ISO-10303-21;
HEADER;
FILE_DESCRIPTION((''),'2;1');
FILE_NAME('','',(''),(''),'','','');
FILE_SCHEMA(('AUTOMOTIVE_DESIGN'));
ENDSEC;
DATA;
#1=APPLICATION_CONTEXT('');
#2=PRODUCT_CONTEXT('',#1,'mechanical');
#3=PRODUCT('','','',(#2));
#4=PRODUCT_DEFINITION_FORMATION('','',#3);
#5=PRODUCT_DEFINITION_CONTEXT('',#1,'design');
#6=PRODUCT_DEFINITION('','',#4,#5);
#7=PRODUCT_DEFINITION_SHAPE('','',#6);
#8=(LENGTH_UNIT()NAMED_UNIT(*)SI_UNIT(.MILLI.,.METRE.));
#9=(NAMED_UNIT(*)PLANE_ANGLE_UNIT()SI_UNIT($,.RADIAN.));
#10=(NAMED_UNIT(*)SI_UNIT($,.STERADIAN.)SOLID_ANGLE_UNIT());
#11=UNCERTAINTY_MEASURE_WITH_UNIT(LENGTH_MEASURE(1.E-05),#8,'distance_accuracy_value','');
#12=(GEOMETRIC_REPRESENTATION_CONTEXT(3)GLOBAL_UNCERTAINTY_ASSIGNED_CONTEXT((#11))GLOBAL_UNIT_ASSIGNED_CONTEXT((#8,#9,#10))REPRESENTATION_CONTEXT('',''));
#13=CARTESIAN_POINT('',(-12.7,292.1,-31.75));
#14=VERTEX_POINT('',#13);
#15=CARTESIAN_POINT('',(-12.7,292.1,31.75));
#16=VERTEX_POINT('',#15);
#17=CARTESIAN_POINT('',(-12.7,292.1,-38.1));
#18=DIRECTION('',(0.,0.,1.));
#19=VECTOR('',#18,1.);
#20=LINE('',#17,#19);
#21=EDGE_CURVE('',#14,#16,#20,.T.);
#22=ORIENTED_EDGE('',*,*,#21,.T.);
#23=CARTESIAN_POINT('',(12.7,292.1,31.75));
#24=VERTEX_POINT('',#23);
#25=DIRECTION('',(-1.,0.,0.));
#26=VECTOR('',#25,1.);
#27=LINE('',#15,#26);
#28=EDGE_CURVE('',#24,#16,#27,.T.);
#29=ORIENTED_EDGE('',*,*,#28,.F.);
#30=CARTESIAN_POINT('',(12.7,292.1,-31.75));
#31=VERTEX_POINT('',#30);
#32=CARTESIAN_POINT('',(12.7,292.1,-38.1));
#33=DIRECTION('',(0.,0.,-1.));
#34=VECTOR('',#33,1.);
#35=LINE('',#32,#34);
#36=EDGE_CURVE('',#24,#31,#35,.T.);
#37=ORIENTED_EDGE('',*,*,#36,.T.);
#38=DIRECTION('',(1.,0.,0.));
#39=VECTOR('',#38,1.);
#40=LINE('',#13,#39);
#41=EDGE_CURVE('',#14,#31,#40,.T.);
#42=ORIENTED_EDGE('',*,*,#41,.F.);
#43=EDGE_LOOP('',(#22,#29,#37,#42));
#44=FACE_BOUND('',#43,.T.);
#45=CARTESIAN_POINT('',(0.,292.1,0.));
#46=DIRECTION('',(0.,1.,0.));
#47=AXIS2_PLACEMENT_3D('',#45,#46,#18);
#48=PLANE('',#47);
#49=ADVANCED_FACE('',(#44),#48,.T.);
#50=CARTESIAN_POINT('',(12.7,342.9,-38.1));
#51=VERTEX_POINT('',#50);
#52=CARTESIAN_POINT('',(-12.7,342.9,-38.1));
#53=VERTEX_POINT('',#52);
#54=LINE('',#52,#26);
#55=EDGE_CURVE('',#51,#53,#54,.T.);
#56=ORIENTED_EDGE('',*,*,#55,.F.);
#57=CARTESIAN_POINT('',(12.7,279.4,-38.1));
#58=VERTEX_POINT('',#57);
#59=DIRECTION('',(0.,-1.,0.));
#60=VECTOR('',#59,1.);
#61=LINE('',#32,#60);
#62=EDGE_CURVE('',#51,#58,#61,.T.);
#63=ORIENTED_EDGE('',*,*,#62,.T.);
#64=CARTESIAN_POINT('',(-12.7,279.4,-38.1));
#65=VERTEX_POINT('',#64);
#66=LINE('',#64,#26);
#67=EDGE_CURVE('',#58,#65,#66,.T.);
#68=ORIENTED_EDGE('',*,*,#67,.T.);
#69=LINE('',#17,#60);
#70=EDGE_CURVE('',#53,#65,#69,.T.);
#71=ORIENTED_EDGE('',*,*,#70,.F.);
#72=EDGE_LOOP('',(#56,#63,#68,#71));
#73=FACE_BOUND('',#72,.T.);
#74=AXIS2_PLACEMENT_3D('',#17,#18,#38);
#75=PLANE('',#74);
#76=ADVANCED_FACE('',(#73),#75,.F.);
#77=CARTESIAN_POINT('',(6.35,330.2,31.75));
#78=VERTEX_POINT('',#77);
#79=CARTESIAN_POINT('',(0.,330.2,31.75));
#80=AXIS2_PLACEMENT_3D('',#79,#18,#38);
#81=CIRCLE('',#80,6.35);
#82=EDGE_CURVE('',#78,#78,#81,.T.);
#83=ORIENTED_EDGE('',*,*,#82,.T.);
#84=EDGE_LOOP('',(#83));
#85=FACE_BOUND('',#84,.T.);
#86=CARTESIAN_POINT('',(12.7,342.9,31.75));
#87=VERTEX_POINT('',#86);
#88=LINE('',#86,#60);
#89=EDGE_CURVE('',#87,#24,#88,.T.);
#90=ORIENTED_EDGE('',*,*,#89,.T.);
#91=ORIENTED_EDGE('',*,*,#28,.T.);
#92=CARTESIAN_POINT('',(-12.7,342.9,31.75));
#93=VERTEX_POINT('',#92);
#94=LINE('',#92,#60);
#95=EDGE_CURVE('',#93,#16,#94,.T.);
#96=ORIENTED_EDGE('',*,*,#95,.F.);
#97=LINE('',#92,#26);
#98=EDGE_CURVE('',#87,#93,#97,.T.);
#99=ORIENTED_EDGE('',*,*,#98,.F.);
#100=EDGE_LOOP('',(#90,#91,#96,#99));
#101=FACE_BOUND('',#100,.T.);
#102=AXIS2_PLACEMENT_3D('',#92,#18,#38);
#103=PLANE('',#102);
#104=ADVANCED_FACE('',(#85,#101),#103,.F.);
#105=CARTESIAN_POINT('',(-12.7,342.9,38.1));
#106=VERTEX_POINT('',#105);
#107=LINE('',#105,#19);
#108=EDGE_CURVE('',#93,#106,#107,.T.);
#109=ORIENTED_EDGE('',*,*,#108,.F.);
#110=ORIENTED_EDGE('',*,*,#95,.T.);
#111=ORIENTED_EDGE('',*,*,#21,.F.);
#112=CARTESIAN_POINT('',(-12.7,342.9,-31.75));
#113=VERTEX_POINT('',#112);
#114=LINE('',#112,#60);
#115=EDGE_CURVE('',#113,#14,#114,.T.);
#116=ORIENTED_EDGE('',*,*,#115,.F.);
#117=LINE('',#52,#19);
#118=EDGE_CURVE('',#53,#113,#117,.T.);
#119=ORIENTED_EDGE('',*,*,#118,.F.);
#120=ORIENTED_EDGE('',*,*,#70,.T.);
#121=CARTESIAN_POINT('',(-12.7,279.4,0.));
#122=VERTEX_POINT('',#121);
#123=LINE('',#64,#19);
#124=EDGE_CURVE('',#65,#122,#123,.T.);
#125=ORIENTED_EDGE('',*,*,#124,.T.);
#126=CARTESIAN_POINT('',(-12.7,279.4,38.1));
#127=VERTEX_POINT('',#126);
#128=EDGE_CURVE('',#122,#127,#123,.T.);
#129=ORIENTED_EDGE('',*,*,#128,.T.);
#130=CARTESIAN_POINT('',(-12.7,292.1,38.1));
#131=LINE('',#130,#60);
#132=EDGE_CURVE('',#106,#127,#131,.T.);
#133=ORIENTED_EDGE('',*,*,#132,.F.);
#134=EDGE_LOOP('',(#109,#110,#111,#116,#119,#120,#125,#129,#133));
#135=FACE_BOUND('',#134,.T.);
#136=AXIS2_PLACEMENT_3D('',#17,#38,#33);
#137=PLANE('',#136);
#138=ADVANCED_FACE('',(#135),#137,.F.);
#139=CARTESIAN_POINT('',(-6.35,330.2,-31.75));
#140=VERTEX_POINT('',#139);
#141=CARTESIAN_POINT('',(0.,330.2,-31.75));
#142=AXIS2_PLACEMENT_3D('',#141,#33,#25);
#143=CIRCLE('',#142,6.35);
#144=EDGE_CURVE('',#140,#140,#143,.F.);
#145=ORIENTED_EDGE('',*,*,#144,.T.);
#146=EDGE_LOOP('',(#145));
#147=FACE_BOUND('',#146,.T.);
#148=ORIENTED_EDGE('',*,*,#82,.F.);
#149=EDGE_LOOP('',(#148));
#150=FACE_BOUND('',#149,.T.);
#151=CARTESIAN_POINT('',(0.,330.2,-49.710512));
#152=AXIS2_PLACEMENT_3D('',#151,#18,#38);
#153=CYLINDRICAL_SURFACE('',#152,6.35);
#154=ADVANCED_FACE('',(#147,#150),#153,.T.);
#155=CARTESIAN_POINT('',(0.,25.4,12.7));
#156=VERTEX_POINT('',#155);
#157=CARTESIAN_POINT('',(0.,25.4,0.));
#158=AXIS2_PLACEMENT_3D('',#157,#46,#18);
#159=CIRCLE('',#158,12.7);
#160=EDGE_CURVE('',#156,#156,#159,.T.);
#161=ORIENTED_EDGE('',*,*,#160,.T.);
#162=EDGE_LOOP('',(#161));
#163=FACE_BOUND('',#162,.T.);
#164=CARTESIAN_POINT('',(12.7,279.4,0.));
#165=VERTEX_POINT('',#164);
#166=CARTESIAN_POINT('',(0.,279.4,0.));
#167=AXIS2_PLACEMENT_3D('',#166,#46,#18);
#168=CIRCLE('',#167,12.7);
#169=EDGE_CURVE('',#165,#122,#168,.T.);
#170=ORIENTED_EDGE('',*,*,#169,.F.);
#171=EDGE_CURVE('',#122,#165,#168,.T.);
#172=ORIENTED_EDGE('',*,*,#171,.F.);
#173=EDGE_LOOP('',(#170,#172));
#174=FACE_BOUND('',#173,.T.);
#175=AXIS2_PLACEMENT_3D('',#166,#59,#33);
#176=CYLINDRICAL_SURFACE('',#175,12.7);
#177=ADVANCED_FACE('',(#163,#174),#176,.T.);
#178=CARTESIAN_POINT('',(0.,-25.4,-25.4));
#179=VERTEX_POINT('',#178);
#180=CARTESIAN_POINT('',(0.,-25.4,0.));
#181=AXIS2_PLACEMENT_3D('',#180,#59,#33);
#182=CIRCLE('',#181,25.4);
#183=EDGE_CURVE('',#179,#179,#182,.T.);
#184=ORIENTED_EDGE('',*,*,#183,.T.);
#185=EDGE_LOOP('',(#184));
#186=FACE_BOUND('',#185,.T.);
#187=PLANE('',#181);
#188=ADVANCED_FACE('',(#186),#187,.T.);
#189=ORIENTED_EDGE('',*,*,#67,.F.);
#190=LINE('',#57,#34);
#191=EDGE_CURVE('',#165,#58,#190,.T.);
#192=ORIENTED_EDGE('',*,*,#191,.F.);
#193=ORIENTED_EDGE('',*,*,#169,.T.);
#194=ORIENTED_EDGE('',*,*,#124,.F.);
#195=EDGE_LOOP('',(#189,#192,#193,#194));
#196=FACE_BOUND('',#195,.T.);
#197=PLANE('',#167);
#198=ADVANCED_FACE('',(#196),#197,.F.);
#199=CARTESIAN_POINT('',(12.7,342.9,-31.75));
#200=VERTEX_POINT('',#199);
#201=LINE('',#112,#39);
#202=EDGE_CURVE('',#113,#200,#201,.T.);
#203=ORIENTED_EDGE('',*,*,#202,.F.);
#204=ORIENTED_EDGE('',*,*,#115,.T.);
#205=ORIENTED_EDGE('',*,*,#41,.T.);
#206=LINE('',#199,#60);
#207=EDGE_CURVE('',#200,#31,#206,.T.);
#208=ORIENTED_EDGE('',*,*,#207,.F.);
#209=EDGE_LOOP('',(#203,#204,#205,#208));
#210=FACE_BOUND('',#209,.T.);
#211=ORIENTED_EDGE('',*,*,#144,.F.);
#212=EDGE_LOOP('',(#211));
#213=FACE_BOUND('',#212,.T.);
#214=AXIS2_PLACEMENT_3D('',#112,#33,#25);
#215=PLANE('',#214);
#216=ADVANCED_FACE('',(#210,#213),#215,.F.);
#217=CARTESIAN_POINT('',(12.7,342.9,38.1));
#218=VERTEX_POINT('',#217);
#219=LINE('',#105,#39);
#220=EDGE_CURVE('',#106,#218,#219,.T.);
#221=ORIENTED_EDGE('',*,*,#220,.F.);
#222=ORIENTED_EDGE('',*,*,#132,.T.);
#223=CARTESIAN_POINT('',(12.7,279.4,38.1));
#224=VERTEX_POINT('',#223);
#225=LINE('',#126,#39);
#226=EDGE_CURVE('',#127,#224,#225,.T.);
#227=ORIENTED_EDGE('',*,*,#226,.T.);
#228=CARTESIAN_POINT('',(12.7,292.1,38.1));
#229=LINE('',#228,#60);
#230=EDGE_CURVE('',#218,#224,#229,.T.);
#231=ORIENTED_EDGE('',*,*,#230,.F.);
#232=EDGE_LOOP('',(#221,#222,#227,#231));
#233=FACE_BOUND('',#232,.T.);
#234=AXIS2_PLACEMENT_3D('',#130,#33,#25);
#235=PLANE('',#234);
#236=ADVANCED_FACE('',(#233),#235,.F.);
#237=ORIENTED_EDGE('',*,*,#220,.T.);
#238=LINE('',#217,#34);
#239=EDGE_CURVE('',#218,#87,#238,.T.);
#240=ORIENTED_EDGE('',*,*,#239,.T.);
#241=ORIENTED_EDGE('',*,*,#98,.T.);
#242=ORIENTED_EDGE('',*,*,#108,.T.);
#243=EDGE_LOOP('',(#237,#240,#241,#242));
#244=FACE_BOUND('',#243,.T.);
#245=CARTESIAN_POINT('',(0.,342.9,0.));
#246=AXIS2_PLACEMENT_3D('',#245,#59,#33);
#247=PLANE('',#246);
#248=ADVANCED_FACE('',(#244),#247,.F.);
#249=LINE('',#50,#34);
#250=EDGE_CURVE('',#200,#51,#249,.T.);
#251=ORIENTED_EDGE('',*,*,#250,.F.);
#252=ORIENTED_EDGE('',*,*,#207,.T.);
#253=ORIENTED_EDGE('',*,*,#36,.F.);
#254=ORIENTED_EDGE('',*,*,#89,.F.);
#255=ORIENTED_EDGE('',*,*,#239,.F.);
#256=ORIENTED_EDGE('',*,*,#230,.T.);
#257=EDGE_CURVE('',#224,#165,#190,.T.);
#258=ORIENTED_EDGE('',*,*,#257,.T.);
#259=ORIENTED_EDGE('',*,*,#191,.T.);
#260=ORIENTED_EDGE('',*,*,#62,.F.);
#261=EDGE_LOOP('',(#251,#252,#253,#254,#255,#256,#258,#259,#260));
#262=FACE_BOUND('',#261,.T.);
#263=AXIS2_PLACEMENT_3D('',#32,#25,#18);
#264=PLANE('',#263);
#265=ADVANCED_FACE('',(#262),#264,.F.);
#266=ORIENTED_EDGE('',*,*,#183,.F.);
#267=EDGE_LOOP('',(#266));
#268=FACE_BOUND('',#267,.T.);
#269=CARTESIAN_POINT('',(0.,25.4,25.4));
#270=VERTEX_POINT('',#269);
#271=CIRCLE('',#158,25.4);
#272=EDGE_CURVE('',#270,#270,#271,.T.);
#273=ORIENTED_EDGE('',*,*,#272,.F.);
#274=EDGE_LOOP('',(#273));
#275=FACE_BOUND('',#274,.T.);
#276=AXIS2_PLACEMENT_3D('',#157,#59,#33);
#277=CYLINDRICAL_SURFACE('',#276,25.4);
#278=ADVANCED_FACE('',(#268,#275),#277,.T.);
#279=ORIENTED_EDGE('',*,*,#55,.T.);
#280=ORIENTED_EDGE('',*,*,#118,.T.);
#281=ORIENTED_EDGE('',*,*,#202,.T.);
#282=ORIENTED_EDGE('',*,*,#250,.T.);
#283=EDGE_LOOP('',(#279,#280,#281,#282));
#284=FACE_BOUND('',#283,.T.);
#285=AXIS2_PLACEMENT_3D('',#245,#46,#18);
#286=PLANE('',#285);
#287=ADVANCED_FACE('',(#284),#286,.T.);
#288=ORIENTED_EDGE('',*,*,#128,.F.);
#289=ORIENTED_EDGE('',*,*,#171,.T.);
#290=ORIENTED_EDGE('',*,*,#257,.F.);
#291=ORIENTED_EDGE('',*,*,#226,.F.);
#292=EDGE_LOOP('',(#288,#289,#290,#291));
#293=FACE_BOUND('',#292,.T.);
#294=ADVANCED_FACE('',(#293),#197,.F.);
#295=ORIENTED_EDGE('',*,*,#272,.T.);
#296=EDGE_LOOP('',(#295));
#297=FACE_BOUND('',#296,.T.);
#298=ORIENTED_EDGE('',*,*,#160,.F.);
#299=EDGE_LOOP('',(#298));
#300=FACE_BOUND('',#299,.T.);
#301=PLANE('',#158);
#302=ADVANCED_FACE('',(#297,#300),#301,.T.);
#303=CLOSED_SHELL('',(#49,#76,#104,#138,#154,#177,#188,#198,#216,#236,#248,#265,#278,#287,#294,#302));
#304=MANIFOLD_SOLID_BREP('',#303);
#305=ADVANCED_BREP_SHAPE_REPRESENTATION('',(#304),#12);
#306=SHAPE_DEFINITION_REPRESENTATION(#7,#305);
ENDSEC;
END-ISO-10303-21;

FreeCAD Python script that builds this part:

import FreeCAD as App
import Part
import Sketcher

V = App.Vector
Q = App.Units.Quantity

doc = App.newDocument("Part")
params = doc.addObject("Spreadsheet::Sheet", "Params")
for row, (alias, value) in enumerate([
    ("sketch1_diameter", "2 in"),
    ("pad1_length", "1 in"),
    ("sketch2_diameter", "1 in"),
    ("pad2_length", "10 in"),
    ("sketch3_width", "1 in"),
    ("sketch3_height", "3 in"),
    ("pad3_length", "0.5 in"),
    ("sketch4_width", "1 in"),
    ("sketch4_height", "0.25 in"),
    ("pad4_length", "2 in"),
    ("sketch5_diameter", "0.5 in"),
    ("pad5_length", "2.75 in"),
    ("sketch6_diameter", "2 in"),
    ("pad6_length", "1 in"),
], start=1):
    params.set(f"A{row}", alias)
    params.set(f"B{row}", "=" + value)
    params.setAlias(f"B{row}", alias)

body = doc.addObject("PartDesign::Body", "Body")

# Sketch on XZ plane
sketch1 = body.newObject("Sketcher::SketchObject", "Sketch")
sketch1.AttachmentSupport = (doc.getObject("XZ_Plane"), [""])
sketch1.MapMode = "FlatFace"
sketch1.addGeometry(Part.Circle(V(0, 0, 0), V(0, 0, 1), 25), False)
sketch1.addConstraint(Sketcher.Constraint("Coincident", 0, 3, -1, 1))
sketch1.addConstraint(Sketcher.Constraint("Diameter", 0, Q("2 in")))
sketch1.setExpression("Constraints[1]", "Params.sketch1_diameter")
pad1 = body.newObject("PartDesign::Pad", "Pad")
pad1.Profile = sketch1
pad1.setExpression("Length", "Params.pad1_length")
pad1.Reversed = True

# Sketch on XZ plane
sketch2 = body.newObject("Sketcher::SketchObject", "Sketch001")
sketch2.AttachmentSupport = (doc.getObject("XZ_Plane"), [""])
sketch2.MapMode = "FlatFace"
sketch2.AttachmentOffset = App.Placement(V(0, 0, -1 * 25.4), App.Rotation())
sketch2.addGeometry(Part.Circle(V(0, 0, 0), V(0, 0, 1), 13), False)
sketch2.addConstraint(Sketcher.Constraint("Coincident", 0, 3, -1, 1))
sketch2.addConstraint(Sketcher.Constraint("Diameter", 0, Q("1 in")))
sketch2.setExpression("Constraints[1]", "Params.sketch2_diameter")
pad2 = body.newObject("PartDesign::Pad", "Pad001")
pad2.Profile = sketch2
pad2.setExpression("Length", "Params.pad2_length")
pad2.Reversed = True

# Sketch on XZ plane
sketch3 = body.newObject("Sketcher::SketchObject", "Sketch002")
sketch3.AttachmentSupport = (doc.getObject("XZ_Plane"), [""])
sketch3.MapMode = "FlatFace"
sketch3.AttachmentOffset = App.Placement(V(0, 0, -11 * 25.4), App.Rotation())
sketch3.addGeometry(Part.LineSegment(V(-13, -38, 0), V(-13, 38, 0)), False)
sketch3.addGeometry(Part.LineSegment(V(-13, 38, 0), V(13, 38, 0)), False)
sketch3.addGeometry(Part.LineSegment(V(13, 38, 0), V(13, -38, 0)), False)
sketch3.addGeometry(Part.LineSegment(V(13, -38, 0), V(-13, -38, 0)), False)
sketch3.addConstraint(Sketcher.Constraint("Coincident", 0, 2, 1, 1))
sketch3.addConstraint(Sketcher.Constraint("Coincident", 1, 2, 2, 1))
sketch3.addConstraint(Sketcher.Constraint("Coincident", 2, 2, 3, 1))
sketch3.addConstraint(Sketcher.Constraint("Coincident", 3, 2, 0, 1))
sketch3.addConstraint(Sketcher.Constraint("Vertical", 0))
sketch3.addConstraint(Sketcher.Constraint("Horizontal", 1))
sketch3.addConstraint(Sketcher.Constraint("Vertical", 2))
sketch3.addConstraint(Sketcher.Constraint("Horizontal", 3))
sketch3.addConstraint(Sketcher.Constraint("Symmetric", 0, 2, 2, 2, -1, 1))
sketch3.addConstraint(Sketcher.Constraint("DistanceX", 1, 1, 1, 2, Q("1 in")))
sketch3.addConstraint(Sketcher.Constraint("DistanceY", 0, 1, 0, 2, Q("3 in")))
sketch3.setExpression("Constraints[9]", "Params.sketch3_width")
sketch3.setExpression("Constraints[10]", "Params.sketch3_height")
pad3 = body.newObject("PartDesign::Pad", "Pad002")
pad3.Profile = sketch3
pad3.setExpression("Length", "Params.pad3_length")
pad3.Reversed = True

# Sketch on XZ plane
sketch4 = body.newObject("Sketcher::SketchObject", "Sketch003")
sketch4.AttachmentSupport = (doc.getObject("XZ_Plane"), [""])
sketch4.MapMode = "FlatFace"
sketch4.AttachmentOffset = App.Placement(V(0, 0, -11.5 * 25.4), App.Rotation())
sketch4.addGeometry(Part.LineSegment(V(-13, -38, 0), V(-13, -32, 0)), False)
sketch4.addGeometry(Part.LineSegment(V(-13, -32, 0), V(13, -32, 0)), False)
sketch4.addGeometry(Part.LineSegment(V(13, -32, 0), V(13, -38, 0)), False)
sketch4.addGeometry(Part.LineSegment(V(13, -38, 0), V(-13, -38, 0)), False)
sketch4.addGeometry(Part.LineSegment(V(-13, 32, 0), V(-13, 38, 0)), False)
sketch4.addGeometry(Part.LineSegment(V(-13, 38, 0), V(13, 38, 0)), False)
sketch4.addGeometry(Part.LineSegment(V(13, 38, 0), V(13, 32, 0)), False)
sketch4.addGeometry(Part.LineSegment(V(13, 32, 0), V(-13, 32, 0)), False)
sketch4.addConstraint(Sketcher.Constraint("Coincident", 0, 2, 1, 1))
sketch4.addConstraint(Sketcher.Constraint("Coincident", 1, 2, 2, 1))
sketch4.addConstraint(Sketcher.Constraint("Coincident", 2, 2, 3, 1))
sketch4.addConstraint(Sketcher.Constraint("Coincident", 3, 2, 0, 1))
sketch4.addConstraint(Sketcher.Constraint("Coincident", 4, 2, 5, 1))
sketch4.addConstraint(Sketcher.Constraint("Coincident", 5, 2, 6, 1))
sketch4.addConstraint(Sketcher.Constraint("Coincident", 6, 2, 7, 1))
sketch4.addConstraint(Sketcher.Constraint("Coincident", 7, 2, 4, 1))
sketch4.addConstraint(Sketcher.Constraint("Vertical", 0))
sketch4.addConstraint(Sketcher.Constraint("Horizontal", 1))
sketch4.addConstraint(Sketcher.Constraint("Vertical", 2))
sketch4.addConstraint(Sketcher.Constraint("Horizontal", 3))
sketch4.addConstraint(Sketcher.Constraint("Vertical", 4))
sketch4.addConstraint(Sketcher.Constraint("Horizontal", 5))
sketch4.addConstraint(Sketcher.Constraint("Vertical", 6))
sketch4.addConstraint(Sketcher.Constraint("Horizontal", 7))
sketch4.addConstraint(Sketcher.Constraint("Symmetric", 2, 2, 4, 2, -1, 1))
sketch4.addConstraint(Sketcher.Constraint("Symmetric", 0, 2, 6, 2, -1, 1))
sketch4.addConstraint(Sketcher.Constraint("Vertical", 3, 2, 4, 2))
sketch4.addConstraint(Sketcher.Constraint("DistanceX", 1, 1, 1, 2, Q("1 in")))
sketch4.addConstraint(Sketcher.Constraint("DistanceY", 3, 2, 4, 2, Q("3 in")))
sketch4.addConstraint(Sketcher.Constraint("DistanceY", 0, 1, 0, 2, Q("0.25 in")))
sketch4.setExpression("Constraints[19]", "Params.sketch4_width")
sketch4.setExpression("Constraints[21]", "Params.sketch4_height")
pad4 = body.newObject("PartDesign::Pad", "Pad003")
pad4.Profile = sketch4
pad4.setExpression("Length", "Params.pad4_length")
pad4.Reversed = True

# Sketch on XY plane
sketch5 = body.newObject("Sketcher::SketchObject", "Sketch004")
sketch5.AttachmentSupport = (doc.getObject("XY_Plane"), [""])
sketch5.MapMode = "FlatFace"
sketch5.AttachmentOffset = App.Placement(V(0, 0, 1.5 * 25.4), App.Rotation())
sketch5.addGeometry(Part.Circle(V(0, 330, 0), V(0, 0, 1), 6), False)
sketch5.addConstraint(Sketcher.Constraint("PointOnObject", 0, 3, -2))
sketch5.addConstraint(Sketcher.Constraint("Diameter", 0, Q("0.5 in")))
sketch5.addConstraint(Sketcher.Constraint("DistanceY", -1, 1, 0, 3, Q("13 in")))
sketch5.setExpression("Constraints[1]", "Params.sketch5_diameter")
pad5 = body.newObject("PartDesign::Pad", "Pad004")
pad5.Profile = sketch5
pad5.setExpression("Length", "Params.pad5_length")
pad5.Reversed = True

# Sketch on XZ plane
sketch6 = body.newObject("Sketcher::SketchObject", "Sketch005")
sketch6.AttachmentSupport = (doc.getObject("XZ_Plane"), [""])
sketch6.MapMode = "FlatFace"
sketch6.addGeometry(Part.Circle(V(0, 0, 0), V(0, 0, 1), 25), False)
sketch6.addConstraint(Sketcher.Constraint("Coincident", 0, 3, -1, 1))
sketch6.addConstraint(Sketcher.Constraint("Diameter", 0, Q("2 in")))
sketch6.setExpression("Constraints[1]", "Params.sketch6_diameter")
pad6 = body.newObject("PartDesign::Pad", "Pad005")
pad6.Profile = sketch6
pad6.setExpression("Length", "Params.pad6_length")

doc.recompute()
